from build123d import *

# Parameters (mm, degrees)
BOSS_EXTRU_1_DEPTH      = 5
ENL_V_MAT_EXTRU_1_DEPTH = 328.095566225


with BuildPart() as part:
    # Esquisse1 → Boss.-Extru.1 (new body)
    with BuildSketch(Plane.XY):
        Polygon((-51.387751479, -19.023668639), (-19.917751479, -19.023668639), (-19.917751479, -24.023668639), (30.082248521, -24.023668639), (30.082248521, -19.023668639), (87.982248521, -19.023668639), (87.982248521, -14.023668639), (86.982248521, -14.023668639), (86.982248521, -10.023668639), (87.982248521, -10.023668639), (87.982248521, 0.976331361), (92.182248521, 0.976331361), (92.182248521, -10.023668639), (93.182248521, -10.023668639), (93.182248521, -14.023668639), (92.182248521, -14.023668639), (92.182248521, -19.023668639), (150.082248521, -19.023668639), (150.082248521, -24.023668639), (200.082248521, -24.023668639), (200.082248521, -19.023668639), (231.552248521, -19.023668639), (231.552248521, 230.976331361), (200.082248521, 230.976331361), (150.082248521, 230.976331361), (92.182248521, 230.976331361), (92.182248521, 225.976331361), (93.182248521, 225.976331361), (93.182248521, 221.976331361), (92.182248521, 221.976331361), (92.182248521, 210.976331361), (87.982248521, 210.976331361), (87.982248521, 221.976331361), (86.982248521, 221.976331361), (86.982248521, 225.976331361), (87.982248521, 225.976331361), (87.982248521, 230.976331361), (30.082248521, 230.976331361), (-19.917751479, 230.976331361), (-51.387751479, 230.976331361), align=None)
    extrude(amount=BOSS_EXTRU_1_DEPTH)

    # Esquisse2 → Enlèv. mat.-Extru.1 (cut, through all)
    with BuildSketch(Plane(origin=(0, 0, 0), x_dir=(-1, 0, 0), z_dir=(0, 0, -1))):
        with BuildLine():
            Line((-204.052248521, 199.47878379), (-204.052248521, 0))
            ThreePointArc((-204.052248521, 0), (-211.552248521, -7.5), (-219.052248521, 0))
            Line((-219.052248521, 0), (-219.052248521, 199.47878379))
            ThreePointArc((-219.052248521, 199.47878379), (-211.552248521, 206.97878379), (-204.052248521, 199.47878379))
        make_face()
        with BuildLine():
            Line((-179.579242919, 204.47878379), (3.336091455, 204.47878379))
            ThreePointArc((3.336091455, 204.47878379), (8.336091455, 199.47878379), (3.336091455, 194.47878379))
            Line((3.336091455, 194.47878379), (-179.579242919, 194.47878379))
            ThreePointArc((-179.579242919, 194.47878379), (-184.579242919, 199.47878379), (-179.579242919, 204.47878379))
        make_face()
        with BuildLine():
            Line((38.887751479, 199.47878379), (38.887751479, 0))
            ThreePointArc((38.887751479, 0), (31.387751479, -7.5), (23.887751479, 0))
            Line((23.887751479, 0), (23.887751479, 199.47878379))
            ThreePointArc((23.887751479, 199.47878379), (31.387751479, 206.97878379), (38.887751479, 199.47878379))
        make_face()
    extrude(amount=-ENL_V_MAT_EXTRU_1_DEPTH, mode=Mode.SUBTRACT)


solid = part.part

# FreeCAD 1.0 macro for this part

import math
import FreeCAD as App
import Part
import Sketcher

V = App.Vector


def add_polygon(sketch, points):
    """Adds a closed chain of lines whose ends are joined by coincident constraints."""
    first, n = sketch.GeometryCount, len(points)
    for a, b in zip(points, points[1:] + points[:1]):
        sketch.addGeometry(Part.LineSegment(App.Vector(*a, 0), App.Vector(*b, 0)), False)
    for i in range(n):
        sketch.addConstraint(Sketcher.Constraint("Coincident", first + i, 2, first + (i + 1) % n, 1))

doc = App.newDocument("Part")
body = doc.addObject("PartDesign::Body", "Body")

# Sketch on XY plane
sketch1 = body.newObject("Sketcher::SketchObject", "Sketch")
sketch1.AttachmentSupport = (doc.getObject("XY_Plane"), [""])
sketch1.MapMode = "FlatFace"
add_polygon(sketch1, [(-51.387751, -19.023669), (-19.917751, -19.023669), (-19.917751, -24.023669), (30.082249, -24.023669), (30.082249, -19.023669), (87.982249, -19.023669), (87.982249, -14.023669), (86.982249, -14.023669), (86.982249, -10.023669), (87.982249, -10.023669), (87.982249, 0.976331), (92.182249, 0.976331), (92.182249, -10.023669), (93.182249, -10.023669), (93.182249, -14.023669), (92.182249, -14.023669), (92.182249, -19.023669), (150.082249, -19.023669), (150.082249, -24.023669), (200.082249, -24.023669), (200.082249, -19.023669), (231.552249, -19.023669), (231.552249, 230.976331), (92.182249, 230.976331), (92.182249, 225.976331), (93.182249, 225.976331), (93.182249, 221.976331), (92.182249, 221.976331), (92.182249, 210.976331), (87.982249, 210.976331), (87.982249, 221.976331), (86.982249, 221.976331), (86.982249, 225.976331), (87.982249, 225.976331), (87.982249, 230.976331), (-51.387751, 230.976331)])  # lines 0-35
sketch1.addConstraint(Sketcher.Constraint("Horizontal", 0))
sketch1.addConstraint(Sketcher.Constraint("Vertical", 1))
sketch1.addConstraint(Sketcher.Constraint("Horizontal", 2))
sketch1.addConstraint(Sketcher.Constraint("Vertical", 3))
sketch1.addConstraint(Sketcher.Constraint("Horizontal", 4))
sketch1.addConstraint(Sketcher.Constraint("Vertical", 5))
sketch1.addConstraint(Sketcher.Constraint("Horizontal", 6))
sketch1.addConstraint(Sketcher.Constraint("Vertical", 7))
sketch1.addConstraint(Sketcher.Constraint("Horizontal", 8))
sketch1.addConstraint(Sketcher.Constraint("Vertical", 9))
sketch1.addConstraint(Sketcher.Constraint("Horizontal", 10))
sketch1.addConstraint(Sketcher.Constraint("Vertical", 11))
sketch1.addConstraint(Sketcher.Constraint("Horizontal", 12))
sketch1.addConstraint(Sketcher.Constraint("Vertical", 13))
sketch1.addConstraint(Sketcher.Constraint("Horizontal", 14))
sketch1.addConstraint(Sketcher.Constraint("Vertical", 15))
sketch1.addConstraint(Sketcher.Constraint("Horizontal", 16))
sketch1.addConstraint(Sketcher.Constraint("Vertical", 17))
sketch1.addConstraint(Sketcher.Constraint("Horizontal", 18))
sketch1.addConstraint(Sketcher.Constraint("Vertical", 19))
sketch1.addConstraint(Sketcher.Constraint("Horizontal", 20))
sketch1.addConstraint(Sketcher.Constraint("Vertical", 21))
sketch1.addConstraint(Sketcher.Constraint("Horizontal", 22))
sketch1.addConstraint(Sketcher.Constraint("Vertical", 23))
sketch1.addConstraint(Sketcher.Constraint("Horizontal", 24))
sketch1.addConstraint(Sketcher.Constraint("Vertical", 25))
sketch1.addConstraint(Sketcher.Constraint("Horizontal", 26))
sketch1.addConstraint(Sketcher.Constraint("Vertical", 27))
sketch1.addConstraint(Sketcher.Constraint("Horizontal", 28))
sketch1.addConstraint(Sketcher.Constraint("Vertical", 29))
sketch1.addConstraint(Sketcher.Constraint("Horizontal", 30))
sketch1.addConstraint(Sketcher.Constraint("Vertical", 31))
sketch1.addConstraint(Sketcher.Constraint("Horizontal", 32))
sketch1.addConstraint(Sketcher.Constraint("Vertical", 33))
sketch1.addConstraint(Sketcher.Constraint("Horizontal", 34))
sketch1.addConstraint(Sketcher.Constraint("Vertical", 35))
sketch1.addConstraint(Sketcher.Constraint("Horizontal", 0, 2, 3, 2))
sketch1.addConstraint(Sketcher.Constraint("Horizontal", 8, 2, 11, 2))
sketch1.addConstraint(Sketcher.Constraint("Horizontal", 6, 2, 13, 2))
sketch1.addConstraint(Sketcher.Constraint("Horizontal", 4, 2, 15, 2))
sketch1.addConstraint(Sketcher.Constraint("Horizontal", 2, 2, 17, 2))
sketch1.addConstraint(Sketcher.Constraint("Horizontal", 16, 2, 19, 2))
sketch1.addConstraint(Sketcher.Constraint("Horizontal", 26, 2, 29, 2))
sketch1.addConstraint(Sketcher.Constraint("Horizontal", 24, 2, 31, 2))
sketch1.addConstraint(Sketcher.Constraint("Horizontal", 22, 2, 33, 2))
sketch1.addConstraint(Sketcher.Constraint("Vertical", 5, 2, 8, 2))
sketch1.addConstraint(Sketcher.Constraint("Vertical", 11, 2, 14, 2))
sketch1.addConstraint(Sketcher.Constraint("Vertical", 15, 2, 22, 2))
sketch1.addConstraint(Sketcher.Constraint("Vertical", 13, 2, 24, 2))
sketch1.addConstraint(Sketcher.Constraint("Vertical", 23, 2, 26, 2))
sketch1.addConstraint(Sketcher.Constraint("Vertical", 9, 2, 28, 2))
sketch1.addConstraint(Sketcher.Constraint("Vertical", 7, 2, 30, 2))
sketch1.addConstraint(Sketcher.Constraint("Vertical", 29, 2, 32, 2))
sketch1.addConstraint(Sketcher.Constraint("Equal", 8, 12))
sketch1.addConstraint(Sketcher.Constraint("Equal", 4, 16))
sketch1.addConstraint(Sketcher.Constraint("Equal", 2, 18))
sketch1.addConstraint(Sketcher.Constraint("Equal", 0, 20))
sketch1.addConstraint(Sketcher.Constraint("Equal", 3, 5))
sketch1.addConstraint(Sketcher.Constraint("Equal", 19, 23))
sketch1.addConstraint(Sketcher.Constraint("Equal", 13, 25))
sketch1.addConstraint(Sketcher.Constraint("Equal", 11, 27))
sketch1.addConstraint(Sketcher.Constraint("DistanceX", 2, 1, 2, 2, 50.0))
sketch1.addConstraint(Sketcher.Constraint("DistanceX", 6, 2, 6, 1, 1.0))
sketch1.addConstraint(Sketcher.Constraint("DistanceY", 1, 2, 1, 1, 5.0))
sketch1.addConstraint(Sketcher.Constraint("DistanceY", 7, 1, 7, 2, 4.0))
sketch1.addConstraint(Sketcher.Constraint("DistanceY", 9, 1, 9, 2, 11.0))
sketch1.addConstraint(Sketcher.Constraint("DistanceY", 21, 1, 21, 2, 250.0))
sketch1.addConstraint(Sketcher.Constraint("DistanceX", 4, 1, 4, 2, 57.9))
sketch1.addConstraint(Sketcher.Constraint("DistanceX", 10, 1, 10, 2, 4.2))
sketch1.addConstraint(Sketcher.Constraint("DistanceX", 0, 1, 0, 2, 31.47))
sketch1.addConstraint(Sketcher.Constraint("DistanceX", 0, 2, -1, 1, 19.917751))
sketch1.addConstraint(Sketcher.Constraint("DistanceY", 0, 2, -1, 1, 19.023669))
pad1 = body.newObject("PartDesign::Pad", "Pad")
pad1.Profile = sketch1
pad1.Length = 5

# Sketch on XY plane
sketch2 = body.newObject("Sketcher::SketchObject", "Sketch001")
sketch2.AttachmentSupport = (doc.getObject("XY_Plane"), [""])
sketch2.MapMode = "FlatFace"
sketch2.addGeometry(Part.LineSegment(V(204.052249, 0, 0), V(204.052249, 199.478784, 0)), False)
sketch2.addGeometry(Part.ArcOfCircle(Part.Circle(V(211.552249, 199.478784, 0), V(0, 0, 1), 7.5), math.radians(0), math.radians(180)), False)
sketch2.addGeometry(Part.LineSegment(V(219.052249, 199.478784, 0), V(219.052249, 0, 0)), False)
sketch2.addGeometry(Part.ArcOfCircle(Part.Circle(V(211.552249, 0, 0), V(0, 0, 1), 7.5), math.radians(180), math.radians(360)), False)
sketch2.addGeometry(Part.LineSegment(V(-3.336091, 204.478784, 0), V(179.579243, 204.478784, 0)), False)
sketch2.addGeometry(Part.ArcOfCircle(Part.Circle(V(179.579243, 199.478784, 0), V(0, 0, 1), 5), math.radians(-90), math.radians(90)), False)
sketch2.addGeometry(Part.LineSegment(V(179.579243, 194.478784, 0), V(-3.336091, 194.478784, 0)), False)
sketch2.addGeometry(Part.ArcOfCircle(Part.Circle(V(-3.336091, 199.478784, 0), V(0, 0, 1), 5), math.radians(90), math.radians(270)), False)
sketch2.addGeometry(Part.LineSegment(V(-38.887751, 0, 0), V(-38.887751, 199.478784, 0)), False)
sketch2.addGeometry(Part.ArcOfCircle(Part.Circle(V(-31.387751, 199.478784, 0), V(0, 0, 1), 7.5), math.radians(0), math.radians(180)), False)
sketch2.addGeometry(Part.LineSegment(V(-23.887751, 199.478784, 0), V(-23.887751, 0, 0)), False)
sketch2.addGeometry(Part.ArcOfCircle(Part.Circle(V(-31.387751, 0, 0), V(0, 0, 1), 7.5), math.radians(180), math.radians(360)), False)
sketch2.addConstraint(Sketcher.Constraint("Tangent", 0, 2, 1, 2))
sketch2.addConstraint(Sketcher.Constraint("Tangent", 1, 1, 2, 1))
sketch2.addConstraint(Sketcher.Constraint("Tangent", 2, 2, 3, 2))
sketch2.addConstraint(Sketcher.Constraint("Tangent", 3, 1, 0, 1))
sketch2.addConstraint(Sketcher.Constraint("Tangent", 4, 2, 5, 2))
sketch2.addConstraint(Sketcher.Constraint("Tangent", 5, 1, 6, 1))
sketch2.addConstraint(Sketcher.Constraint("Tangent", 6, 2, 7, 2))
sketch2.addConstraint(Sketcher.Constraint("Tangent", 7, 1, 4, 1))
sketch2.addConstraint(Sketcher.Constraint("Tangent", 8, 2, 9, 2))
sketch2.addConstraint(Sketcher.Constraint("Tangent", 9, 1, 10, 1))
sketch2.addConstraint(Sketcher.Constraint("Tangent", 10, 2, 11, 2))
sketch2.addConstraint(Sketcher.Constraint("Tangent", 11, 1, 8, 1))
sketch2.addConstraint(Sketcher.Constraint("Vertical", 0))
sketch2.addConstraint(Sketcher.Constraint("Vertical", 2))
sketch2.addConstraint(Sketcher.Constraint("Horizontal", 4))
sketch2.addConstraint(Sketcher.Constraint("Horizontal", 6))
sketch2.addConstraint(Sketcher.Constraint("Vertical", 8))
sketch2.addConstraint(Sketcher.Constraint("Vertical", 10))
sketch2.addConstraint(Sketcher.Constraint("Equal", 3, 9))
sketch2.addConstraint(Sketcher.Constraint("PointOnObject", 3, 3, -1))
sketch2.addConstraint(Sketcher.Constraint("PointOnObject", 11, 3, -1))
sketch2.addConstraint(Sketcher.Constraint("Horizontal", 1, 3, 5, 3))
sketch2.addConstraint(Sketcher.Constraint("Horizontal", 7, 3, 9, 3))
sketch2.addConstraint(Sketcher.Constraint("Radius", 5, 5.0))
sketch2.addConstraint(Sketcher.Constraint("Radius", 1, 7.5))
sketch2.addConstraint(Sketcher.Constraint("DistanceX", 9, 3, 1, 3, 242.94))
sketch2.addConstraint(Sketcher.Constraint("DistanceX", 4, 1, 4, 2, 182.915334))
sketch2.addConstraint(Sketcher.Constraint("DistanceY", 0, 1, 0, 2, 199.478784))
sketch2.addConstraint(Sketcher.Constraint("DistanceX", -1, 1, 1, 3, 211.552249))
sketch2.addConstraint(Sketcher.Constraint("DistanceX", 7, 3, -1, 1, 3.336091))
pocket1 = body.newObject("PartDesign::Pocket", "Pocket")
pocket1.Profile = sketch2
pocket1.Type = "ThroughAll"
pocket1.Reversed = True

doc.recompute()
